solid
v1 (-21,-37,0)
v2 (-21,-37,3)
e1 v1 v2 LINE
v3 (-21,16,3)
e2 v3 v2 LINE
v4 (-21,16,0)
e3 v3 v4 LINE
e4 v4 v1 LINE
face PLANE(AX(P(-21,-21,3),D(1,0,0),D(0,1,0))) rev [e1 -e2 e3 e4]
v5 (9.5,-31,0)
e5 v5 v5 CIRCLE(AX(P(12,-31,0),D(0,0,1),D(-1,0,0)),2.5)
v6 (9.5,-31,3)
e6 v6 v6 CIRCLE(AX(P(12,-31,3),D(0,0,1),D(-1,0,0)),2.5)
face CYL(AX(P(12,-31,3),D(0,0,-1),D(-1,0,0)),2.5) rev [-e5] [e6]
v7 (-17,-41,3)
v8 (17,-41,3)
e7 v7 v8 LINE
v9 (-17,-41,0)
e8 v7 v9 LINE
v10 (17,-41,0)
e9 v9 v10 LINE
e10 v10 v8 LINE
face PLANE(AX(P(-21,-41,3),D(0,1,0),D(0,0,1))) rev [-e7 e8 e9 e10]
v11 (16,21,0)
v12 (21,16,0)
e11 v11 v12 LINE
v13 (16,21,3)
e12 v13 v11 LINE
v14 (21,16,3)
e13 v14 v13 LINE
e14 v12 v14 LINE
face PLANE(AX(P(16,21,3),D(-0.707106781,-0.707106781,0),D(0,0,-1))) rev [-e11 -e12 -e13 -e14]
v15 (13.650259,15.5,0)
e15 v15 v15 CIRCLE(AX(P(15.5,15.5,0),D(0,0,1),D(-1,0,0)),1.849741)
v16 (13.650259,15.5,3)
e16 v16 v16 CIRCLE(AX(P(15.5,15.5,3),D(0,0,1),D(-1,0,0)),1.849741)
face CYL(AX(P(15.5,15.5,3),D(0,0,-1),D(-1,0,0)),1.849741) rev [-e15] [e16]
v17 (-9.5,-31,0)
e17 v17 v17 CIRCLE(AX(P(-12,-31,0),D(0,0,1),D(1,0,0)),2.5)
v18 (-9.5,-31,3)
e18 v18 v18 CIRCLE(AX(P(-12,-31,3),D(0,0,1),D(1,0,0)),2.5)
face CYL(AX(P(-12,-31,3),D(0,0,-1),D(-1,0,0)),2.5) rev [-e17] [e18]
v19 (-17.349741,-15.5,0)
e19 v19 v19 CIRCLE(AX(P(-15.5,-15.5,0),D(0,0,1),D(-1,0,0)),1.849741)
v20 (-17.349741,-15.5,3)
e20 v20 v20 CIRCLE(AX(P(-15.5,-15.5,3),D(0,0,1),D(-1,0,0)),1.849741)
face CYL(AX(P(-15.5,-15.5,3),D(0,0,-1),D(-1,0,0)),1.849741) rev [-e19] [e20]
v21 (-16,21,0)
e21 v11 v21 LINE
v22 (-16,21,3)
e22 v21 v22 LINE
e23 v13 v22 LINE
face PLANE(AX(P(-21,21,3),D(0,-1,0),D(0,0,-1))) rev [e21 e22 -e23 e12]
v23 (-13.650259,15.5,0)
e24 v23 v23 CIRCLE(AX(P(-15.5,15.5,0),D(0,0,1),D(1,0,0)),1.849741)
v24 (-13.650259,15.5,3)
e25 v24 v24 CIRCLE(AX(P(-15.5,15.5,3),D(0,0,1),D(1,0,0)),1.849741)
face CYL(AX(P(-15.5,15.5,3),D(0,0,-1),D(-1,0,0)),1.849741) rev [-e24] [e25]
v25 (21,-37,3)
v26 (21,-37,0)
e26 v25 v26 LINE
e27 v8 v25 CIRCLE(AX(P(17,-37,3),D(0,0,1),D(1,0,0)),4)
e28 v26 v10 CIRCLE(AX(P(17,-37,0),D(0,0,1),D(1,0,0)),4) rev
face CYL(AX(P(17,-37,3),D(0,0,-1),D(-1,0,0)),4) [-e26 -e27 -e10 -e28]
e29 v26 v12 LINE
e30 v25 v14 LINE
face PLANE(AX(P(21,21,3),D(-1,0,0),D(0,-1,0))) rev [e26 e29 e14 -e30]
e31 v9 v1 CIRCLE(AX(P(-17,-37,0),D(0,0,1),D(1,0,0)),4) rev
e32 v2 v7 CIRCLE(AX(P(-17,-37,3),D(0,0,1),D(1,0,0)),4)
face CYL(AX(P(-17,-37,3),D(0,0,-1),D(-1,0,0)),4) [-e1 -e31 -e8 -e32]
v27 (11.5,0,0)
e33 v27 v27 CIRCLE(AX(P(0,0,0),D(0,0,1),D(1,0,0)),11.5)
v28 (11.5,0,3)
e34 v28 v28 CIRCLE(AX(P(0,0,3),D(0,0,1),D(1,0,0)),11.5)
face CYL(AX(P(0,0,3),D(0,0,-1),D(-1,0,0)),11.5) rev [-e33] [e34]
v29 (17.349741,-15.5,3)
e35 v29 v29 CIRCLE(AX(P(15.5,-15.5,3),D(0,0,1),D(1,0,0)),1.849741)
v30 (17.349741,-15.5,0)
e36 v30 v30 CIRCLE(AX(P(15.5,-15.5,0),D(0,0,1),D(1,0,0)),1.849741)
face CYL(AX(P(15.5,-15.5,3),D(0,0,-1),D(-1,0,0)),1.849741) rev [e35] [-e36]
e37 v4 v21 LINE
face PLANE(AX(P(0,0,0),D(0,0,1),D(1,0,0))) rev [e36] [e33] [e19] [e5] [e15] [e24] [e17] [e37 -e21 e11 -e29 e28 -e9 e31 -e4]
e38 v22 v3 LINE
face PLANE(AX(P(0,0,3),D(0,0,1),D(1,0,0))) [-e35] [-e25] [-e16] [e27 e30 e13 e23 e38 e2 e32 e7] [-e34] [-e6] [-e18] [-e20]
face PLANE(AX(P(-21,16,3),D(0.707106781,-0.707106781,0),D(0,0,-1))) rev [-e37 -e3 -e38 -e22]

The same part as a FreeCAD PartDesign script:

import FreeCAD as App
import Part
import Sketcher
Q = App.Units.Quantity


def edges_at(feature, points):
    """Names of the edges that pass closest to the given points."""
    edges = feature.Shape.Edges
    near = lambda p: min(range(len(edges)), key=lambda i: edges[i].distToShape(Part.Vertex(*p))[0])
    return sorted({f"Edge{near(p) + 1}" for p in points})

doc = App.newDocument("Part")
body = doc.addObject("PartDesign::Body", "Body")

# Sketch on XY plane
sketch1 = body.newObject("Sketcher::SketchObject", "Sketch")
sketch1.AttachmentSupport = (doc.getObject("XY_Plane"), [""])
sketch1.MapMode = "FlatFace"
sketch1.addGeometry(Part.LineSegment(App.Vector(21, 21, 0), App.Vector(-21, 21, 0)), False)
sketch1.addGeometry(Part.LineSegment(App.Vector(-21, 21, 0), App.Vector(-21, -41, 0)), False)
sketch1.addGeometry(Part.LineSegment(App.Vector(-21, -41, 0), App.Vector(21, -41, 0)), False)
sketch1.addGeometry(Part.LineSegment(App.Vector(21, -41, 0), App.Vector(21, 21, 0)), False)
sketch1.addGeometry(Part.Circle(App.Vector(12, -31, 0), App.Vector(0, 0, 1), 2.5), False)
sketch1.addGeometry(Part.Circle(App.Vector(15.5, -15.5, 0), App.Vector(0, 0, 1), 1.849741), False)
sketch1.addGeometry(Part.Circle(App.Vector(-12, -31, 0), App.Vector(0, 0, 1), 2.5), False)
sketch1.addGeometry(Part.Circle(App.Vector(-15.5, -15.5, 0), App.Vector(0, 0, 1), 1.849741), False)
sketch1.addGeometry(Part.Circle(App.Vector(15.5, 15.5, 0), App.Vector(0, 0, 1), 1.849741), False)
sketch1.addGeometry(Part.Circle(App.Vector(0, 0, 0), App.Vector(0, 0, 1), 11.5), False)
sketch1.addGeometry(Part.Circle(App.Vector(-15.5, 15.5, 0), App.Vector(0, 0, 1), 1.849741), False)
sketch1.addConstraint(Sketcher.Constraint("Coincident", 0, 2, 1, 1))
sketch1.addConstraint(Sketcher.Constraint("Coincident", 1, 2, 2, 1))
sketch1.addConstraint(Sketcher.Constraint("Coincident", 2, 2, 3, 1))
sketch1.addConstraint(Sketcher.Constraint("Coincident", 3, 2, 0, 1))
sketch1.addConstraint(Sketcher.Constraint("Horizontal", 0))
sketch1.addConstraint(Sketcher.Constraint("Vertical", 1))
sketch1.addConstraint(Sketcher.Constraint("Horizontal", 2))
sketch1.addConstraint(Sketcher.Constraint("Vertical", 3))
sketch1.addConstraint(Sketcher.Constraint("Coincident", 9, 3, -1, 1))
sketch1.addConstraint(Sketcher.Constraint("Equal", 4, 6))
sketch1.addConstraint(Sketcher.Constraint("Equal", 5, 7))
sketch1.addConstraint(Sketcher.Constraint("Equal", 7, 8))
sketch1.addConstraint(Sketcher.Constraint("Equal", 8, 10))
sketch1.addConstraint(Sketcher.Constraint("Symmetric", 7, 3, 8, 3, -1, 1))
sketch1.addConstraint(Sketcher.Constraint("Symmetric", 5, 3, 10, 3, -1, 1))
sketch1.addConstraint(Sketcher.Constraint("Symmetric", 4, 3, 6, 3, -2))
sketch1.addConstraint(Sketcher.Constraint("Symmetric", 5, 3, 7, 3, -2))
sketch1.addConstraint(Sketcher.Constraint("Diameter", 4, Q("5 mm")))
sketch1.addConstraint(Sketcher.Constraint("Diameter", 9, Q("23 mm")))
sketch1.addConstraint(Sketcher.Constraint("DistanceX", 0, 2, 0, 1, Q("42 mm")))
sketch1.addConstraint(Sketcher.Constraint("DistanceY", 1, 2, 1, 1, Q("62 mm")))
sketch1.addConstraint(Sketcher.Constraint("DistanceX", -1, 1, 4, 3, Q("12 mm")))
sketch1.addConstraint(Sketcher.Constraint("DistanceY", 4, 3, -1, 1, Q("31 mm")))
sketch1.addConstraint(Sketcher.Constraint("DistanceX", 0, 2, -1, 1, Q("21 mm")))
sketch1.addConstraint(Sketcher.Constraint("DistanceY", -1, 1, 0, 2, Q("21 mm")))
sketch1.addConstraint(Sketcher.Constraint("DistanceX", 7, 3, 5, 3, Q("31 mm")))
sketch1.addConstraint(Sketcher.Constraint("DistanceY", 5, 3, 8, 3, Q("31 mm")))
sketch1.addConstraint(Sketcher.Constraint("Diameter", 5, Q("3.699482 mm")))
pad1 = body.newObject("PartDesign::Pad", "Pad")
pad1.Profile = sketch1
pad1.Length = 3
doc.recompute()

fillet = body.newObject("PartDesign::Fillet", "Fillet")
fillet.Base = (pad1, edges_at(pad1, [(21, -41, 1.5), (-21, -41, 1.5)]))
fillet.Radius = 4
doc.recompute()

chamfer = body.newObject("PartDesign::Chamfer", "Chamfer")
chamfer.Base = (fillet, edges_at(fillet, [(-21, 21, 1.5), (21, 21, 1.5)]))
chamfer.Size = 5

doc.recompute()
